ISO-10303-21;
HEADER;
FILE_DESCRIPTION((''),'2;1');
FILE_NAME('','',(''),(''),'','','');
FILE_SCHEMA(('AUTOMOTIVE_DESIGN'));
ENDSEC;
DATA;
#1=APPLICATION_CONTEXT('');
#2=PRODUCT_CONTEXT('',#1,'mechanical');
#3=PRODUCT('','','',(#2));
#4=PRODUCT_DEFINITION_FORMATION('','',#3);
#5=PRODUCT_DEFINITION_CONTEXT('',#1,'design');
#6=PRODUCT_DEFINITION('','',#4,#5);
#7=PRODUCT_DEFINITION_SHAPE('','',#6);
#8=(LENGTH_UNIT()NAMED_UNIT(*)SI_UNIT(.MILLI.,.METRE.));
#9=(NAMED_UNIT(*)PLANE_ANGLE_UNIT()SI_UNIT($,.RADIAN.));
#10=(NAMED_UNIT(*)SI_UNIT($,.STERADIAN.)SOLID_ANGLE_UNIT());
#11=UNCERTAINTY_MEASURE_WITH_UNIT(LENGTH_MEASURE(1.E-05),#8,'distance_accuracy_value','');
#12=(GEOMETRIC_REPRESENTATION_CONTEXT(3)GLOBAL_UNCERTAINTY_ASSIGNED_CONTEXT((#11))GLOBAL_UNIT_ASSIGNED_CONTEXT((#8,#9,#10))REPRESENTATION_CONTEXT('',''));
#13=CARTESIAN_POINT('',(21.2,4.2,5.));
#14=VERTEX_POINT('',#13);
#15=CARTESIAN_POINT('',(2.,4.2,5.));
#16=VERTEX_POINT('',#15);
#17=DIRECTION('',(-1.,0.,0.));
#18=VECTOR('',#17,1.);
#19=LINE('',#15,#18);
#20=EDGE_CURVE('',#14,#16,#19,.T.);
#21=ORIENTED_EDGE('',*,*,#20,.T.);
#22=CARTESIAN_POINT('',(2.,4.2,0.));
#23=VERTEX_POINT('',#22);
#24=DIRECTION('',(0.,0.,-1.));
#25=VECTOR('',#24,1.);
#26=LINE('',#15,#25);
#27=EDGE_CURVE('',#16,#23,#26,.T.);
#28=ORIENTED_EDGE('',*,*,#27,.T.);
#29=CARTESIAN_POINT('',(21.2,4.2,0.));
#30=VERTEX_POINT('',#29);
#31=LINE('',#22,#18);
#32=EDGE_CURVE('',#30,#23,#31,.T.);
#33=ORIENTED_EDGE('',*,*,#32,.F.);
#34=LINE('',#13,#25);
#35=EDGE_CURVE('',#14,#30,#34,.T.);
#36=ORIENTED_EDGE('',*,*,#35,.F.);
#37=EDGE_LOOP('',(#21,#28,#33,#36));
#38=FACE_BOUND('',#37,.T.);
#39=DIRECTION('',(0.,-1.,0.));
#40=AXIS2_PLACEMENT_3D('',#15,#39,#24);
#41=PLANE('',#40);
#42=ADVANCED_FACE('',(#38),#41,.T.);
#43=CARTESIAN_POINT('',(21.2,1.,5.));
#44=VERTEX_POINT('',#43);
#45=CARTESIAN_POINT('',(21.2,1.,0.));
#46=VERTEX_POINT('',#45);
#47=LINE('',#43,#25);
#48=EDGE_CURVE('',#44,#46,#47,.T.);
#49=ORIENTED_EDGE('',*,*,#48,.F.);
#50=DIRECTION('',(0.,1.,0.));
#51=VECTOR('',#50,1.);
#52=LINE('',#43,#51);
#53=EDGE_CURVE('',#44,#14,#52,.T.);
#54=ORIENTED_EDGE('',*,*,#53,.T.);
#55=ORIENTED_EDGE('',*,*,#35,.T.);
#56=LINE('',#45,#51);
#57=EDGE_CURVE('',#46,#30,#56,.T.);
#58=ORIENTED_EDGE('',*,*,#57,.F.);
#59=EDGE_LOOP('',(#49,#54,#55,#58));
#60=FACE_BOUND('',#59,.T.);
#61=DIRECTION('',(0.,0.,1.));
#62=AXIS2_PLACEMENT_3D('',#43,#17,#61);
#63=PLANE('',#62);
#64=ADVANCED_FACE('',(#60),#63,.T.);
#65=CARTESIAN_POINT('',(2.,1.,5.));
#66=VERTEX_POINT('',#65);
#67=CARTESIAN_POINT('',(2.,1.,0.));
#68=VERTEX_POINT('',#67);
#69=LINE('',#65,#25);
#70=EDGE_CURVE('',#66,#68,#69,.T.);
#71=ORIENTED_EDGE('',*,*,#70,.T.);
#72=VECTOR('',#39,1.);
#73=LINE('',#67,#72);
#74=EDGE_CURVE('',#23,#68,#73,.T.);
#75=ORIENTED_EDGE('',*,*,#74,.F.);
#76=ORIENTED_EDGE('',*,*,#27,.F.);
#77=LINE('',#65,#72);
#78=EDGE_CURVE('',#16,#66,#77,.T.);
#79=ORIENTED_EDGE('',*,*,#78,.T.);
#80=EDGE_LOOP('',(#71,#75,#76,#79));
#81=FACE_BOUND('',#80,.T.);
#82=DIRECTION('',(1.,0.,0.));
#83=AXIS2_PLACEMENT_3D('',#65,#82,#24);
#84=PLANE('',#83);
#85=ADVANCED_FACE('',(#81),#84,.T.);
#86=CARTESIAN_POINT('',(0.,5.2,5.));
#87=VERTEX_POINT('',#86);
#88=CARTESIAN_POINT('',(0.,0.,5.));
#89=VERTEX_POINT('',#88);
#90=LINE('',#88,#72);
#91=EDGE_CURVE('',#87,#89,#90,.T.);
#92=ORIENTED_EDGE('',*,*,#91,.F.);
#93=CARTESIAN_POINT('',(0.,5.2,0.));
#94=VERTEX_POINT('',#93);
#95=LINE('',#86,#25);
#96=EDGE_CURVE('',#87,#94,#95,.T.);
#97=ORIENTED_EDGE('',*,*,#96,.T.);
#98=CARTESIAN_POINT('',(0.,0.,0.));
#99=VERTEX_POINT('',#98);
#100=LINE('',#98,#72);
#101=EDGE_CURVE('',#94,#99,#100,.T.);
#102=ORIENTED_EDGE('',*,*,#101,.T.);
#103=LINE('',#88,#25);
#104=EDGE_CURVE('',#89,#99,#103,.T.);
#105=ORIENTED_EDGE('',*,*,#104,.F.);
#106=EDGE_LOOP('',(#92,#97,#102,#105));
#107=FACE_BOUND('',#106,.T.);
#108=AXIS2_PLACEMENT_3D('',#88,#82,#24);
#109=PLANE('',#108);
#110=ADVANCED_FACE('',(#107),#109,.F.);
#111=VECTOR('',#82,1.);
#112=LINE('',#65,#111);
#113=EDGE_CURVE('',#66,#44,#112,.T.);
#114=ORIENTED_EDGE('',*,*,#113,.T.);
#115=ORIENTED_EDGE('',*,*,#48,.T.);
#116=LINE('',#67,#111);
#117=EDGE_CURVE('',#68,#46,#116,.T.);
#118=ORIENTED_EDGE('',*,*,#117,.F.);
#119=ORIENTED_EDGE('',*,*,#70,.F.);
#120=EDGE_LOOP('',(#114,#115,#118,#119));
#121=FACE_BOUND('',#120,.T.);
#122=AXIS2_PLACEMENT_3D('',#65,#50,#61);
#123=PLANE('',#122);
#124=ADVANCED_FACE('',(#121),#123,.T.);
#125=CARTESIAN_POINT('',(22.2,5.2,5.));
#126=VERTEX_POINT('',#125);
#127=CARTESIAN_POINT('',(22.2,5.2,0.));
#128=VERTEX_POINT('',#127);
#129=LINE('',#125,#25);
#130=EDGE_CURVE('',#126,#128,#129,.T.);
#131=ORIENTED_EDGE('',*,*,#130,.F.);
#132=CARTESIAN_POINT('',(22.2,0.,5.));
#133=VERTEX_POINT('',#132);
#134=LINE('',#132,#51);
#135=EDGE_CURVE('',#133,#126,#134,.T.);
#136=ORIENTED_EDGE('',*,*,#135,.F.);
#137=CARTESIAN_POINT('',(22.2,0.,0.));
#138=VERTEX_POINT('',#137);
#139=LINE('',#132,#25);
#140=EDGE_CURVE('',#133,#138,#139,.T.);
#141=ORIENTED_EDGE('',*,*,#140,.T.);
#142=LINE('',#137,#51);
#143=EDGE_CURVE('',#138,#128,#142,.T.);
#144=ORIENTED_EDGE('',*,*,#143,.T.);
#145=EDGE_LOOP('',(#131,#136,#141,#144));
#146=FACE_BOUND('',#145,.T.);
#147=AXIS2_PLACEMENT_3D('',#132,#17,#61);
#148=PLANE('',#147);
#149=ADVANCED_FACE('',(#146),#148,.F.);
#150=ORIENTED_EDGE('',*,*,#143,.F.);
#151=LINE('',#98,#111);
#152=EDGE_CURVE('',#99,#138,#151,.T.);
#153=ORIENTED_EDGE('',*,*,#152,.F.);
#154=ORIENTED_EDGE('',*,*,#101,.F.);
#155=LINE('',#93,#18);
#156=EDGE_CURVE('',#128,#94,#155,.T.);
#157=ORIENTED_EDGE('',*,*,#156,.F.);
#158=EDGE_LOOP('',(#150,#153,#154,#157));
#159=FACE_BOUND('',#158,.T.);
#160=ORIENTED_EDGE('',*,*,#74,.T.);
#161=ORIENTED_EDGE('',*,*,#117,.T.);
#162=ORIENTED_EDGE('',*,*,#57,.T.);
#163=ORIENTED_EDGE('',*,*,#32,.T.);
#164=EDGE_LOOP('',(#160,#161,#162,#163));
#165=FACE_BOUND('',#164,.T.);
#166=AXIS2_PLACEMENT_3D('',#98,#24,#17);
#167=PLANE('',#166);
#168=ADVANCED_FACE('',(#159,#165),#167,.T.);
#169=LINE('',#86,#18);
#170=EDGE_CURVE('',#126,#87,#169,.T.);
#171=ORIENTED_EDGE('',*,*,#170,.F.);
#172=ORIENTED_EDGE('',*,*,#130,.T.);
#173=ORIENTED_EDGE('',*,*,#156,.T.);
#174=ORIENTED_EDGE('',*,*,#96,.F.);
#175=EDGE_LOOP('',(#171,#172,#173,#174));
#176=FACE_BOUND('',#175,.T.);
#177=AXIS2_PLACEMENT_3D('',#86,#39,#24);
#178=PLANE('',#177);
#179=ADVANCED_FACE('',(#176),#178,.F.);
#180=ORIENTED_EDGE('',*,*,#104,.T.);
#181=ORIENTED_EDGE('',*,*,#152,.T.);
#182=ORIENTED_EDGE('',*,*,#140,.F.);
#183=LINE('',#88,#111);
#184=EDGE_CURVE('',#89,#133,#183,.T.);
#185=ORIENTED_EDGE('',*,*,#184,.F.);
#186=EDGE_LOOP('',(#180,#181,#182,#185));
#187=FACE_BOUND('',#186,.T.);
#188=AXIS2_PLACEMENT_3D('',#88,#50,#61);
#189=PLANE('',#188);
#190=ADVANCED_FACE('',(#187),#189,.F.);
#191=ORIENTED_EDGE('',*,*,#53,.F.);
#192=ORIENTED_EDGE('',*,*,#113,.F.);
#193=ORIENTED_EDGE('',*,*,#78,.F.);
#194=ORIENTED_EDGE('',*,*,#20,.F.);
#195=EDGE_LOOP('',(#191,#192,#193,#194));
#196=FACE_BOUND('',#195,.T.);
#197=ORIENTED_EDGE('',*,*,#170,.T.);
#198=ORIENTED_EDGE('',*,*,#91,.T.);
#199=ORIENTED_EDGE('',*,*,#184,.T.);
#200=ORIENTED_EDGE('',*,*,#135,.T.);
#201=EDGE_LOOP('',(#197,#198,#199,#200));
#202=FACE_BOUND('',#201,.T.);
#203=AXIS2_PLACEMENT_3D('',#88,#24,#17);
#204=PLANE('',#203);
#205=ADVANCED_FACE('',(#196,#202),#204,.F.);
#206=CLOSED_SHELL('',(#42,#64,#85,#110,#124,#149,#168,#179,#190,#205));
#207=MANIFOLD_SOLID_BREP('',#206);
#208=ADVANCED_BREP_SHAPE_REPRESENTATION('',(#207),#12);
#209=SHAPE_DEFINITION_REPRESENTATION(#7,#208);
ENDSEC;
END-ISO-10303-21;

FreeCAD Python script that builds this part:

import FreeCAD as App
import Part
import Sketcher

V = App.Vector


def add_polygon(sketch, points):
    """Adds a closed chain of lines whose ends are joined by coincident constraints."""
    first, n = sketch.GeometryCount, len(points)
    for a, b in zip(points, points[1:] + points[:1]):
        sketch.addGeometry(Part.LineSegment(App.Vector(*a, 0), App.Vector(*b, 0)), False)
    for i in range(n):
        sketch.addConstraint(Sketcher.Constraint("Coincident", first + i, 2, first + (i + 1) % n, 1))

doc = App.newDocument("Part")
params = doc.addObject("Spreadsheet::Sheet", "Params")
for row, (alias, value) in enumerate([
    ("sketch1_width", "22.2 mm"),
    ("sketch1_width2", "19.2 mm"),
    ("sketch1_height", "5.2 mm"),
    ("sketch1_height2", "3.2 mm"),
    ("pad1_length", "5 mm"),
], start=1):
    params.set(f"A{row}", alias)
    params.set(f"B{row}", "=" + value)
    params.setAlias(f"B{row}", alias)

body = doc.addObject("PartDesign::Body", "Body")

sketch1 = body.newObject("Sketcher::SketchObject", "Sketch")
sketch1.AttachmentSupport = (doc.getObject("XY_Plane"), [""])
sketch1.MapMode = "FlatFace"
add_polygon(sketch1, [(0, 5.2), (0, 0), (22.2, 0), (22.2, 5.2)])
add_polygon(sketch1, [(21.2, 1), (2, 1), (2, 4.2), (21.2, 4.2)])
sketch1.addConstraint([
    Sketcher.Constraint("Vertical", 0),
    Sketcher.Constraint("Horizontal", 1),
    Sketcher.Constraint("Vertical", 2),
    Sketcher.Constraint("Horizontal", 3),
    Sketcher.Constraint("Horizontal", 4),
    Sketcher.Constraint("Vertical", 5),
    Sketcher.Constraint("Horizontal", 6),
    Sketcher.Constraint("Vertical", 7),
    Sketcher.Constraint("Coincident", 0, 2, -1, 1),
    Sketcher.Constraint("DistanceX", 1, 1, 1, 2, 22.2),
    Sketcher.Constraint("DistanceX", 4, 2, 4, 1, 19.2),
    Sketcher.Constraint("DistanceY", 0, 2, 0, 1, 5.2),
    Sketcher.Constraint("DistanceY", 5, 1, 5, 2, 3.2),
    Sketcher.Constraint("DistanceX", -1, 1, 4, 2, 2.0),
    Sketcher.Constraint("DistanceY", -1, 1, 4, 2, 1.0),
])
sketch1.setExpression("Constraints[17]", "Params.sketch1_width")
sketch1.setExpression("Constraints[18]", "Params.sketch1_width2")
sketch1.setExpression("Constraints[19]", "Params.sketch1_height")
sketch1.setExpression("Constraints[20]", "Params.sketch1_height2")
pad1 = body.newObject("PartDesign::Pad", "Pad")
pad1.Profile = sketch1
pad1.setExpression("Length", "Params.pad1_length")

doc.recompute()
